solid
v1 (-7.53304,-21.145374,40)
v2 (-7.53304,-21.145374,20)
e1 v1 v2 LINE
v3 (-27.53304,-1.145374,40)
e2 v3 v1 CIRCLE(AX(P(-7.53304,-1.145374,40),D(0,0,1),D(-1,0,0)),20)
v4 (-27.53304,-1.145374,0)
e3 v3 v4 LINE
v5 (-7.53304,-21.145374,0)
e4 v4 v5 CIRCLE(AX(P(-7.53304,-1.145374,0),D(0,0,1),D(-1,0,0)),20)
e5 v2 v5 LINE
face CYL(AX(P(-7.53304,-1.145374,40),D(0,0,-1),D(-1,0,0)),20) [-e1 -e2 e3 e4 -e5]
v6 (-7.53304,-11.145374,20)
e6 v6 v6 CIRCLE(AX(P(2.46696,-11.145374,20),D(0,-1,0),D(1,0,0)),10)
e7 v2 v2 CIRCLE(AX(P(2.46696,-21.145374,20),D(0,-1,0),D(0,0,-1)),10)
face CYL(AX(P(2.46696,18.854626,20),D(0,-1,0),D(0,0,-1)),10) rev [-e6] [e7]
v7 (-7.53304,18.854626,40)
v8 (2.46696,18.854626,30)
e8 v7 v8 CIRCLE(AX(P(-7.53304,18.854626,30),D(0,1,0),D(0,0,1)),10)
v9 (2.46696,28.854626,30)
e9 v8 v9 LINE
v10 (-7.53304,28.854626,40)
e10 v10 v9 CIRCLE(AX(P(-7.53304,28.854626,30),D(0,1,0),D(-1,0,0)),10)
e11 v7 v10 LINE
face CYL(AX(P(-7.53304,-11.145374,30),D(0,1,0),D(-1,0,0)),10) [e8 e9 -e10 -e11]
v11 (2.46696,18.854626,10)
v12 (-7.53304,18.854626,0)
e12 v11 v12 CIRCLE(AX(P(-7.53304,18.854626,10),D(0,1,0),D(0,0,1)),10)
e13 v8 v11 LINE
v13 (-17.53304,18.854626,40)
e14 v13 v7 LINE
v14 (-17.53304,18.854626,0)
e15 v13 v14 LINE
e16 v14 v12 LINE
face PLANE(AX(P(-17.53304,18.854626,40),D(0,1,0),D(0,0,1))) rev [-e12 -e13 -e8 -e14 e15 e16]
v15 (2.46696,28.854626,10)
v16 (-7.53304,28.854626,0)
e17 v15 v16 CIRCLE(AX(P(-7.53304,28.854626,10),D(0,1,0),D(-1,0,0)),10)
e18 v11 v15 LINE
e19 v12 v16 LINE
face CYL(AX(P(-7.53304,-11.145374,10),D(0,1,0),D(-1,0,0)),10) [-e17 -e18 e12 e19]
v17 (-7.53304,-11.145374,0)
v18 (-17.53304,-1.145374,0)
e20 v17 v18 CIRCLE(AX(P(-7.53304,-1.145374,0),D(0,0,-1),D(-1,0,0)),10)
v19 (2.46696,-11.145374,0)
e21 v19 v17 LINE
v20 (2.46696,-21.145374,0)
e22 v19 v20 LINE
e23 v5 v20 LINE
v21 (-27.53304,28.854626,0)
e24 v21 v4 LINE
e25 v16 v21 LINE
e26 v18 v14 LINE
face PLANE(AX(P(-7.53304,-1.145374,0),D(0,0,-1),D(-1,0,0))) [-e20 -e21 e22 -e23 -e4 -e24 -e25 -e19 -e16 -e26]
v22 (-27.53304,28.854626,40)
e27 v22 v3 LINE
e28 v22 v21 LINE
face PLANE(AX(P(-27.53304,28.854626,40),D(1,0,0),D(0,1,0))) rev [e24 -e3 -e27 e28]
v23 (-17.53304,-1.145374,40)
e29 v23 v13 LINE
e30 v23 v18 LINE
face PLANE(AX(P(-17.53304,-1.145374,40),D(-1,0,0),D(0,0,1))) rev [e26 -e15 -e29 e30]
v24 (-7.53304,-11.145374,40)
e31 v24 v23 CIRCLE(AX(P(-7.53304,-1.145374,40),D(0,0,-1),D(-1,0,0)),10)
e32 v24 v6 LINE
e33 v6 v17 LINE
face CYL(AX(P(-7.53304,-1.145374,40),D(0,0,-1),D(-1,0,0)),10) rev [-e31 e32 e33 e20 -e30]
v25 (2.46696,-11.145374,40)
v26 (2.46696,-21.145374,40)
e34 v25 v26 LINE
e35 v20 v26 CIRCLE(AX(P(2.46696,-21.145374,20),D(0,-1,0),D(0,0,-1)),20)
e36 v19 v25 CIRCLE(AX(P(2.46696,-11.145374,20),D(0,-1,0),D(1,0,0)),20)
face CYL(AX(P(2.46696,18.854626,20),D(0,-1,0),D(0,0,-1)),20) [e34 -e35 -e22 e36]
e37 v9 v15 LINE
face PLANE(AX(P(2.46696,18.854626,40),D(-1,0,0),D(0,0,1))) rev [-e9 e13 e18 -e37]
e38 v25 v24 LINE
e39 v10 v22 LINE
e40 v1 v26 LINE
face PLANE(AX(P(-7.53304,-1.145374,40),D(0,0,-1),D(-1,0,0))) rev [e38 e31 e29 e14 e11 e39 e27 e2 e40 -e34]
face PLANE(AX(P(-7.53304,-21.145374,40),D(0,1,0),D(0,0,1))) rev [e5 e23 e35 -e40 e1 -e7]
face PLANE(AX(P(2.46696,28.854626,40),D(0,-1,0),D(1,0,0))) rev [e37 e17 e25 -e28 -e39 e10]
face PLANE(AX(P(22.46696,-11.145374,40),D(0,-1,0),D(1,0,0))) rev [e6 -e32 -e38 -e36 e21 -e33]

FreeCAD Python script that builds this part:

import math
import FreeCAD as App
import Part
import Sketcher
from FreeCAD import Vector

doc = App.newDocument("Part")
body = doc.addObject("PartDesign::Body", "Body")

sketch1 = doc.addObject("Sketcher::SketchObject", "Sketch")
body.addObject(sketch1)
sketch1.AttachmentSupport = (doc.XY_Plane, [""])
sketch1.MapMode = "FlatFace"
sketch1.addGeometry([
    Part.LineSegment(Vector(2.46696, 28.854626, 0), Vector(-27.53304, 28.854626, 0)),
    Part.LineSegment(Vector(-27.53304, 28.854626, 0), Vector(-27.53304, -1.145374, 0)),
    Part.ArcOfCircle(Part.Circle(Vector(-7.53304, -1.145374, 0), Vector(0, 0, 1), 20), math.radians(-180), math.radians(-90)),
    Part.LineSegment(Vector(-7.53304, -21.145374, 0), Vector(22.46696, -21.145374, 0)),
    Part.LineSegment(Vector(22.46696, -21.145374, 0), Vector(22.46696, -11.145374, 0)),
    Part.LineSegment(Vector(22.46696, -11.145374, 0), Vector(-7.53304, -11.145374, 0)),
    Part.ArcOfCircle(Part.Circle(Vector(-7.53304, -1.145374, 0), Vector(0, 0, 1), 10), math.radians(-180), math.radians(-90)),
    Part.LineSegment(Vector(-17.53304, -1.145374, 0), Vector(-17.53304, 18.854626, 0)),
    Part.LineSegment(Vector(-17.53304, 18.854626, 0), Vector(2.46696, 18.854626, 0)),
    Part.LineSegment(Vector(2.46696, 18.854626, 0), Vector(2.46696, 28.854626, 0)),
], False)
sketch1.addConstraint([
    Sketcher.Constraint("Coincident", 0, 2, 1, 1),
    Sketcher.Constraint("Tangent", 1, 2, 2, 1),
    Sketcher.Constraint("Tangent", 2, 2, 3, 1),
    Sketcher.Constraint("Coincident", 3, 2, 4, 1),
    Sketcher.Constraint("Coincident", 4, 2, 5, 1),
    Sketcher.Constraint("Tangent", 5, 2, 6, 2),
    Sketcher.Constraint("Tangent", 6, 1, 7, 1),
    Sketcher.Constraint("Coincident", 7, 2, 8, 1),
    Sketcher.Constraint("Coincident", 8, 2, 9, 1),
    Sketcher.Constraint("Coincident", 9, 2, 0, 1),
    Sketcher.Constraint("Horizontal", 0),
    Sketcher.Constraint("Vertical", 1),
    Sketcher.Constraint("Horizontal", 3),
    Sketcher.Constraint("Vertical", 4),
    Sketcher.Constraint("Horizontal", 5),
    Sketcher.Constraint("Vertical", 7),
    Sketcher.Constraint("Horizontal", 8),
    Sketcher.Constraint("Vertical", 9),
    Sketcher.Constraint("Coincident", 6, 3, 2, 3),
    Sketcher.Constraint("Equal", 0, 3),
    Sketcher.Constraint("Equal", 5, 1),
    Sketcher.Constraint("Equal", 8, 7),
    Sketcher.Constraint("Radius", 2, 20.0),
    Sketcher.Constraint("Radius", 6, 10.0),
    Sketcher.Constraint("DistanceX", 0, 2, 0, 1, 30.0),
    Sketcher.Constraint("DistanceX", 2, 3, -1, 1, 7.53304),
    Sketcher.Constraint("DistanceY", 2, 3, -1, 1, 1.145374),
])
pad1 = doc.addObject("PartDesign::Pad", "Pad")
body.addObject(pad1)
pad1.Profile = sketch1
pad1.Length = 40

sketch2 = doc.addObject("Sketcher::SketchObject", "Sketch001")
body.addObject(sketch2)
sketch2.AttachmentSupport = (doc.XZ_Plane, [""])
sketch2.MapMode = "FlatFace"
sketch2.AttachmentOffset = App.Placement(Vector(0, 0, -28.854626), App.Rotation())
sketch2.addGeometry([
    Part.LineSegment(Vector(-36.657, -9.124, 0), Vector(-36.657, 49.124, 0)),
    Part.LineSegment(Vector(-36.657, 49.124, 0), Vector(31.591, 49.124, 0)),
    Part.LineSegment(Vector(31.591, 49.124, 0), Vector(31.591, -9.124, 0)),
    Part.LineSegment(Vector(31.591, -9.124, 0), Vector(-36.657, -9.124, 0)),
    Part.LineSegment(Vector(-27.53304, 40, 0), Vector(-27.53304, 0, 0)),
    Part.LineSegment(Vector(-27.53304, 0, 0), Vector(-7.53304, 0, 0)),
    Part.ArcOfCircle(Part.Circle(Vector(-7.53304, 10, 0), Vector(0, 0, 1), 10), math.radians(-90), math.radians(0)),
    Part.LineSegment(Vector(2.46696, 10, 0), Vector(2.46696, 30, 0)),
    Part.ArcOfCircle(Part.Circle(Vector(-7.53304, 30, 0), Vector(0, 0, 1), 10), math.radians(0), math.radians(90)),
    Part.LineSegment(Vector(-7.53304, 40, 0), Vector(-27.53304, 40, 0)),
], False)
sketch2.addConstraint([
    Sketcher.Constraint("Coincident", 0, 2, 1, 1),
    Sketcher.Constraint("Coincident", 1, 2, 2, 1),
    Sketcher.Constraint("Coincident", 2, 2, 3, 1),
    Sketcher.Constraint("Coincident", 3, 2, 0, 1),
    Sketcher.Constraint("Coincident", 4, 2, 5, 1),
    Sketcher.Constraint("Tangent", 5, 2, 6, 1),
    Sketcher.Constraint("Tangent", 6, 2, 7, 1),
    Sketcher.Constraint("Tangent", 7, 2, 8, 1),
    Sketcher.Constraint("Tangent", 8, 2, 9, 1),
    Sketcher.Constraint("Coincident", 9, 2, 4, 1),
    Sketcher.Constraint("Vertical", 0),
    Sketcher.Constraint("Horizontal", 1),
    Sketcher.Constraint("Vertical", 2),
    Sketcher.Constraint("Horizontal", 3),
    Sketcher.Constraint("Vertical", 4),
    Sketcher.Constraint("Horizontal", 5),
    Sketcher.Constraint("Vertical", 7),
    Sketcher.Constraint("Horizontal", 9),
    Sketcher.Constraint("Equal", 6, 8),
    Sketcher.Constraint("PointOnObject", 4, 2, -1),
    Sketcher.Constraint("Equal", 9, 7),
    Sketcher.Constraint("Radius", 6, 10.0),
    Sketcher.Constraint("DistanceX", 5, 1, 5, 2, 20.0),
    Sketcher.Constraint("DistanceX", 1, 1, 1, 2, 68.248),
    Sketcher.Constraint("DistanceY", 0, 1, 0, 2, 58.248),
    Sketcher.Constraint("DistanceX", 0, 2, -1, 1, 36.657),
    Sketcher.Constraint("DistanceY", -1, 1, 0, 2, 49.124),
    Sketcher.Constraint("DistanceX", 6, 3, -1, 1, 7.53304),
])
pocket1 = doc.addObject("PartDesign::Pocket", "Pocket")
body.addObject(pocket1)
pocket1.Profile = sketch2
pocket1.Length = 40
pocket1.Reversed = True

sketch3 = doc.addObject("Sketcher::SketchObject", "Sketch002")
body.addObject(sketch3)
sketch3.AttachmentSupport = (doc.XZ_Plane, [""])
sketch3.MapMode = "FlatFace"
sketch3.AttachmentOffset = App.Placement(Vector(0, 0, 21.145374), App.Rotation())
sketch3.addGeometry([
    Part.LineSegment(Vector(-36.657, 49.124, 0), Vector(-36.657, -9.124, 0)),
    Part.LineSegment(Vector(-36.657, -9.124, 0), Vector(31.591, -9.124, 0)),
    Part.LineSegment(Vector(31.591, -9.124, 0), Vector(31.591, 49.124, 0)),
    Part.LineSegment(Vector(31.591, 49.124, 0), Vector(-36.657, 49.124, 0)),
    Part.LineSegment(Vector(-27.53304, 0, 0), Vector(-27.53304, 40, 0)),
    Part.LineSegment(Vector(-27.53304, 40, 0), Vector(2.46696, 40, 0)),
    Part.ArcOfCircle(Part.Circle(Vector(2.46696, 20, 0), Vector(0, 0, 1), 20), math.radians(-90), math.radians(90)),
    Part.LineSegment(Vector(2.46696, 0, 0), Vector(-27.53304, 0, 0)),
    Part.Circle(Vector(2.46696, 20, 0), Vector(0, 0, 1), 10),
], False)
sketch3.addConstraint([
    Sketcher.Constraint("Coincident", 0, 2, 1, 1),
    Sketcher.Constraint("Coincident", 1, 2, 2, 1),
    Sketcher.Constraint("Coincident", 2, 2, 3, 1),
    Sketcher.Constraint("Coincident", 3, 2, 0, 1),
    Sketcher.Constraint("Coincident", 4, 2, 5, 1),
    Sketcher.Constraint("Tangent", 5, 2, 6, 2),
    Sketcher.Constraint("Tangent", 6, 1, 7, 1),
    Sketcher.Constraint("Coincident", 7, 2, 4, 1),
    Sketcher.Constraint("Vertical", 0),
    Sketcher.Constraint("Horizontal", 1),
    Sketcher.Constraint("Vertical", 2),
    Sketcher.Constraint("Horizontal", 3),
    Sketcher.Constraint("Vertical", 4),
    Sketcher.Constraint("Horizontal", 5),
    Sketcher.Constraint("Horizontal", 7),
    Sketcher.Constraint("Coincident", 8, 3, 6, 3),
    Sketcher.Constraint("PointOnObject", 6, 1, -1),
    Sketcher.Constraint("Diameter", 8, 20.0),
    Sketcher.Constraint("Radius", 6, 20.0),
    Sketcher.Constraint("DistanceX", 5, 1, 5, 2, 30.0),
    Sketcher.Constraint("DistanceX", 1, 1, 1, 2, 68.248),
    Sketcher.Constraint("DistanceY", 0, 2, 0, 1, 58.248),
    Sketcher.Constraint("DistanceX", 0, 2, -1, 1, 36.657),
    Sketcher.Constraint("DistanceY", 0, 2, -1, 1, 9.124),
    Sketcher.Constraint("DistanceX", -1, 1, 6, 3, 2.46696),
])
pocket2 = doc.addObject("PartDesign::Pocket", "Pocket001")
body.addObject(pocket2)
pocket2.Profile = sketch3
pocket2.Length = 40

doc.recompute()
